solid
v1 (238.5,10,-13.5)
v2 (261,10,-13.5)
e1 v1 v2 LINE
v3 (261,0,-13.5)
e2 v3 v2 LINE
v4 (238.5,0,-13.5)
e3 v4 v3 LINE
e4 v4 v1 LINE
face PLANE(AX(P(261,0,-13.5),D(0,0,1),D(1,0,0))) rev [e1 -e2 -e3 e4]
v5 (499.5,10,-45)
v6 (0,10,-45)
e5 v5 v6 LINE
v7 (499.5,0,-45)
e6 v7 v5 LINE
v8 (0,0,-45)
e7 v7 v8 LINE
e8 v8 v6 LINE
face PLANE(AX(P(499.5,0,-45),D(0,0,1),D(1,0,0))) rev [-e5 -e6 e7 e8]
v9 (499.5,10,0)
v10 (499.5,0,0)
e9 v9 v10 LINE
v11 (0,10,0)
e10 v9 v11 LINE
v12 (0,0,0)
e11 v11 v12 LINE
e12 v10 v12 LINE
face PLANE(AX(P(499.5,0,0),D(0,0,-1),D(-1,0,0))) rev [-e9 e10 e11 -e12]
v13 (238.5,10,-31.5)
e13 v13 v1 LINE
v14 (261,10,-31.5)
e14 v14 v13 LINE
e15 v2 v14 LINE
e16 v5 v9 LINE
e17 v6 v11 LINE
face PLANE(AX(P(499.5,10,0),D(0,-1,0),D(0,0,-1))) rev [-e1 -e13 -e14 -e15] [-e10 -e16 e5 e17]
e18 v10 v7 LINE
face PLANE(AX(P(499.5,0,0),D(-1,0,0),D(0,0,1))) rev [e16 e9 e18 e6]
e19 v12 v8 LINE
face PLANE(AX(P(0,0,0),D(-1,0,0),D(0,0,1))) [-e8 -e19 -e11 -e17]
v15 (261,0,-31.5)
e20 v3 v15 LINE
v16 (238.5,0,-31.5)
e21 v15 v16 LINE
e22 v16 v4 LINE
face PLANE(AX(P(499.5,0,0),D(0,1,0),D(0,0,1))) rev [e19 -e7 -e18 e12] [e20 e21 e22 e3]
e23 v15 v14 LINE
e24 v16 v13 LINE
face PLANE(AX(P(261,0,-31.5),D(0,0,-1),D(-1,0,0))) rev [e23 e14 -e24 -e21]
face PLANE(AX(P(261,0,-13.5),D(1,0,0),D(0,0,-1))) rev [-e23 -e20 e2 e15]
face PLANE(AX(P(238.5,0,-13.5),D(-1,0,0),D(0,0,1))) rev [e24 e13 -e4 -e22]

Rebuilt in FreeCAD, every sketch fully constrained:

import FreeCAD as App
import Part
import Sketcher
from FreeCAD import Vector
Q = App.Units.Quantity

doc = App.newDocument("Part")
params = doc.addObject("Spreadsheet::Sheet", "Params")
for row, (alias, value) in enumerate([
    ("sketch1_width", "10 mm"),
    ("sketch1_height", "45 mm"),
    ("pad1_length", "499.5 mm"),
    ("sketch2_height", "18 mm"),
    ("sketch2_width", "22.5 mm"),
], start=1):
    params.set(f"A{row}", alias)
    params.set(f"B{row}", "=" + value)
    params.setAlias(f"B{row}", alias)

body = doc.addObject("PartDesign::Body", "Body")

sketch1 = body.newObject("Sketcher::SketchObject", "Sketch")
sketch1.AttachmentSupport = (doc.getObject("YZ_Plane"), [""])
sketch1.MapMode = "FlatFace"
sketch1.addGeometry(Part.LineSegment(Vector(10, 0, 0), Vector(0, 0, 0)), False)
sketch1.addGeometry(Part.LineSegment(Vector(0, 0, 0), Vector(0, -45, 0)), False)
sketch1.addGeometry(Part.LineSegment(Vector(0, -45, 0), Vector(10, -45, 0)), False)
sketch1.addGeometry(Part.LineSegment(Vector(10, -45, 0), Vector(10, 0, 0)), False)
sketch1.addConstraint(Sketcher.Constraint("Coincident", 0, 2, 1, 1))
sketch1.addConstraint(Sketcher.Constraint("Coincident", 1, 2, 2, 1))
sketch1.addConstraint(Sketcher.Constraint("Coincident", 2, 2, 3, 1))
sketch1.addConstraint(Sketcher.Constraint("Coincident", 3, 2, 0, 1))
sketch1.addConstraint(Sketcher.Constraint("Horizontal", 0))
sketch1.addConstraint(Sketcher.Constraint("Vertical", 1))
sketch1.addConstraint(Sketcher.Constraint("Horizontal", 2))
sketch1.addConstraint(Sketcher.Constraint("Vertical", 3))
sketch1.addConstraint(Sketcher.Constraint("Coincident", 0, 2, -1, 1))
sketch1.addConstraint(Sketcher.Constraint("DistanceX", 0, 2, 0, 1, Q("10 mm")))
sketch1.addConstraint(Sketcher.Constraint("DistanceY", 1, 2, 1, 1, Q("45 mm")))
sketch1.setExpression("Constraints[9]", "Params.sketch1_width")
sketch1.setExpression("Constraints[10]", "Params.sketch1_height")
pad1 = body.newObject("PartDesign::Pad", "Pad")
pad1.Profile = sketch1
pad1.setExpression("Length", "Params.pad1_length")

sketch2 = body.newObject("Sketcher::SketchObject", "Sketch001")
sketch2.AttachmentSupport = (doc.getObject("XZ_Plane"), [""])
sketch2.MapMode = "FlatFace"
sketch2.AttachmentOffset = App.Placement(Vector(0, 0, -10), App.Rotation())
sketch2.addGeometry(Part.LineSegment(Vector(238, -32, 0), Vector(238, -14, 0)), False)
sketch2.addGeometry(Part.LineSegment(Vector(238, -14, 0), Vector(261, -14, 0)), False)
sketch2.addGeometry(Part.LineSegment(Vector(261, -14, 0), Vector(261, -32, 0)), False)
sketch2.addGeometry(Part.LineSegment(Vector(261, -32, 0), Vector(238, -32, 0)), False)
sketch2.addConstraint(Sketcher.Constraint("Coincident", 0, 2, 1, 1))
sketch2.addConstraint(Sketcher.Constraint("Coincident", 1, 2, 2, 1))
sketch2.addConstraint(Sketcher.Constraint("Coincident", 2, 2, 3, 1))
sketch2.addConstraint(Sketcher.Constraint("Coincident", 3, 2, 0, 1))
sketch2.addConstraint(Sketcher.Constraint("Vertical", 0))
sketch2.addConstraint(Sketcher.Constraint("Horizontal", 1))
sketch2.addConstraint(Sketcher.Constraint("Vertical", 2))
sketch2.addConstraint(Sketcher.Constraint("Horizontal", 3))
sketch2.addConstraint(Sketcher.Constraint("DistanceY", 0, 1, 0, 2, Q("18 mm")))
sketch2.addConstraint(Sketcher.Constraint("DistanceX", 1, 1, 1, 2, Q("22.5 mm")))
sketch2.addConstraint(Sketcher.Constraint("DistanceX", -1, 1, 1, 2, Q("261 mm")))
sketch2.addConstraint(Sketcher.Constraint("DistanceY", 0, 2, -1, 1, Q("13.5 mm")))
sketch2.setExpression("Constraints[8]", "Params.sketch2_height")
sketch2.setExpression("Constraints[9]", "Params.sketch2_width")
pocket1 = body.newObject("PartDesign::Pocket", "Pocket")
pocket1.Profile = sketch2
pocket1.Type = "ThroughAll"
pocket1.Reversed = True

doc.recompute()
